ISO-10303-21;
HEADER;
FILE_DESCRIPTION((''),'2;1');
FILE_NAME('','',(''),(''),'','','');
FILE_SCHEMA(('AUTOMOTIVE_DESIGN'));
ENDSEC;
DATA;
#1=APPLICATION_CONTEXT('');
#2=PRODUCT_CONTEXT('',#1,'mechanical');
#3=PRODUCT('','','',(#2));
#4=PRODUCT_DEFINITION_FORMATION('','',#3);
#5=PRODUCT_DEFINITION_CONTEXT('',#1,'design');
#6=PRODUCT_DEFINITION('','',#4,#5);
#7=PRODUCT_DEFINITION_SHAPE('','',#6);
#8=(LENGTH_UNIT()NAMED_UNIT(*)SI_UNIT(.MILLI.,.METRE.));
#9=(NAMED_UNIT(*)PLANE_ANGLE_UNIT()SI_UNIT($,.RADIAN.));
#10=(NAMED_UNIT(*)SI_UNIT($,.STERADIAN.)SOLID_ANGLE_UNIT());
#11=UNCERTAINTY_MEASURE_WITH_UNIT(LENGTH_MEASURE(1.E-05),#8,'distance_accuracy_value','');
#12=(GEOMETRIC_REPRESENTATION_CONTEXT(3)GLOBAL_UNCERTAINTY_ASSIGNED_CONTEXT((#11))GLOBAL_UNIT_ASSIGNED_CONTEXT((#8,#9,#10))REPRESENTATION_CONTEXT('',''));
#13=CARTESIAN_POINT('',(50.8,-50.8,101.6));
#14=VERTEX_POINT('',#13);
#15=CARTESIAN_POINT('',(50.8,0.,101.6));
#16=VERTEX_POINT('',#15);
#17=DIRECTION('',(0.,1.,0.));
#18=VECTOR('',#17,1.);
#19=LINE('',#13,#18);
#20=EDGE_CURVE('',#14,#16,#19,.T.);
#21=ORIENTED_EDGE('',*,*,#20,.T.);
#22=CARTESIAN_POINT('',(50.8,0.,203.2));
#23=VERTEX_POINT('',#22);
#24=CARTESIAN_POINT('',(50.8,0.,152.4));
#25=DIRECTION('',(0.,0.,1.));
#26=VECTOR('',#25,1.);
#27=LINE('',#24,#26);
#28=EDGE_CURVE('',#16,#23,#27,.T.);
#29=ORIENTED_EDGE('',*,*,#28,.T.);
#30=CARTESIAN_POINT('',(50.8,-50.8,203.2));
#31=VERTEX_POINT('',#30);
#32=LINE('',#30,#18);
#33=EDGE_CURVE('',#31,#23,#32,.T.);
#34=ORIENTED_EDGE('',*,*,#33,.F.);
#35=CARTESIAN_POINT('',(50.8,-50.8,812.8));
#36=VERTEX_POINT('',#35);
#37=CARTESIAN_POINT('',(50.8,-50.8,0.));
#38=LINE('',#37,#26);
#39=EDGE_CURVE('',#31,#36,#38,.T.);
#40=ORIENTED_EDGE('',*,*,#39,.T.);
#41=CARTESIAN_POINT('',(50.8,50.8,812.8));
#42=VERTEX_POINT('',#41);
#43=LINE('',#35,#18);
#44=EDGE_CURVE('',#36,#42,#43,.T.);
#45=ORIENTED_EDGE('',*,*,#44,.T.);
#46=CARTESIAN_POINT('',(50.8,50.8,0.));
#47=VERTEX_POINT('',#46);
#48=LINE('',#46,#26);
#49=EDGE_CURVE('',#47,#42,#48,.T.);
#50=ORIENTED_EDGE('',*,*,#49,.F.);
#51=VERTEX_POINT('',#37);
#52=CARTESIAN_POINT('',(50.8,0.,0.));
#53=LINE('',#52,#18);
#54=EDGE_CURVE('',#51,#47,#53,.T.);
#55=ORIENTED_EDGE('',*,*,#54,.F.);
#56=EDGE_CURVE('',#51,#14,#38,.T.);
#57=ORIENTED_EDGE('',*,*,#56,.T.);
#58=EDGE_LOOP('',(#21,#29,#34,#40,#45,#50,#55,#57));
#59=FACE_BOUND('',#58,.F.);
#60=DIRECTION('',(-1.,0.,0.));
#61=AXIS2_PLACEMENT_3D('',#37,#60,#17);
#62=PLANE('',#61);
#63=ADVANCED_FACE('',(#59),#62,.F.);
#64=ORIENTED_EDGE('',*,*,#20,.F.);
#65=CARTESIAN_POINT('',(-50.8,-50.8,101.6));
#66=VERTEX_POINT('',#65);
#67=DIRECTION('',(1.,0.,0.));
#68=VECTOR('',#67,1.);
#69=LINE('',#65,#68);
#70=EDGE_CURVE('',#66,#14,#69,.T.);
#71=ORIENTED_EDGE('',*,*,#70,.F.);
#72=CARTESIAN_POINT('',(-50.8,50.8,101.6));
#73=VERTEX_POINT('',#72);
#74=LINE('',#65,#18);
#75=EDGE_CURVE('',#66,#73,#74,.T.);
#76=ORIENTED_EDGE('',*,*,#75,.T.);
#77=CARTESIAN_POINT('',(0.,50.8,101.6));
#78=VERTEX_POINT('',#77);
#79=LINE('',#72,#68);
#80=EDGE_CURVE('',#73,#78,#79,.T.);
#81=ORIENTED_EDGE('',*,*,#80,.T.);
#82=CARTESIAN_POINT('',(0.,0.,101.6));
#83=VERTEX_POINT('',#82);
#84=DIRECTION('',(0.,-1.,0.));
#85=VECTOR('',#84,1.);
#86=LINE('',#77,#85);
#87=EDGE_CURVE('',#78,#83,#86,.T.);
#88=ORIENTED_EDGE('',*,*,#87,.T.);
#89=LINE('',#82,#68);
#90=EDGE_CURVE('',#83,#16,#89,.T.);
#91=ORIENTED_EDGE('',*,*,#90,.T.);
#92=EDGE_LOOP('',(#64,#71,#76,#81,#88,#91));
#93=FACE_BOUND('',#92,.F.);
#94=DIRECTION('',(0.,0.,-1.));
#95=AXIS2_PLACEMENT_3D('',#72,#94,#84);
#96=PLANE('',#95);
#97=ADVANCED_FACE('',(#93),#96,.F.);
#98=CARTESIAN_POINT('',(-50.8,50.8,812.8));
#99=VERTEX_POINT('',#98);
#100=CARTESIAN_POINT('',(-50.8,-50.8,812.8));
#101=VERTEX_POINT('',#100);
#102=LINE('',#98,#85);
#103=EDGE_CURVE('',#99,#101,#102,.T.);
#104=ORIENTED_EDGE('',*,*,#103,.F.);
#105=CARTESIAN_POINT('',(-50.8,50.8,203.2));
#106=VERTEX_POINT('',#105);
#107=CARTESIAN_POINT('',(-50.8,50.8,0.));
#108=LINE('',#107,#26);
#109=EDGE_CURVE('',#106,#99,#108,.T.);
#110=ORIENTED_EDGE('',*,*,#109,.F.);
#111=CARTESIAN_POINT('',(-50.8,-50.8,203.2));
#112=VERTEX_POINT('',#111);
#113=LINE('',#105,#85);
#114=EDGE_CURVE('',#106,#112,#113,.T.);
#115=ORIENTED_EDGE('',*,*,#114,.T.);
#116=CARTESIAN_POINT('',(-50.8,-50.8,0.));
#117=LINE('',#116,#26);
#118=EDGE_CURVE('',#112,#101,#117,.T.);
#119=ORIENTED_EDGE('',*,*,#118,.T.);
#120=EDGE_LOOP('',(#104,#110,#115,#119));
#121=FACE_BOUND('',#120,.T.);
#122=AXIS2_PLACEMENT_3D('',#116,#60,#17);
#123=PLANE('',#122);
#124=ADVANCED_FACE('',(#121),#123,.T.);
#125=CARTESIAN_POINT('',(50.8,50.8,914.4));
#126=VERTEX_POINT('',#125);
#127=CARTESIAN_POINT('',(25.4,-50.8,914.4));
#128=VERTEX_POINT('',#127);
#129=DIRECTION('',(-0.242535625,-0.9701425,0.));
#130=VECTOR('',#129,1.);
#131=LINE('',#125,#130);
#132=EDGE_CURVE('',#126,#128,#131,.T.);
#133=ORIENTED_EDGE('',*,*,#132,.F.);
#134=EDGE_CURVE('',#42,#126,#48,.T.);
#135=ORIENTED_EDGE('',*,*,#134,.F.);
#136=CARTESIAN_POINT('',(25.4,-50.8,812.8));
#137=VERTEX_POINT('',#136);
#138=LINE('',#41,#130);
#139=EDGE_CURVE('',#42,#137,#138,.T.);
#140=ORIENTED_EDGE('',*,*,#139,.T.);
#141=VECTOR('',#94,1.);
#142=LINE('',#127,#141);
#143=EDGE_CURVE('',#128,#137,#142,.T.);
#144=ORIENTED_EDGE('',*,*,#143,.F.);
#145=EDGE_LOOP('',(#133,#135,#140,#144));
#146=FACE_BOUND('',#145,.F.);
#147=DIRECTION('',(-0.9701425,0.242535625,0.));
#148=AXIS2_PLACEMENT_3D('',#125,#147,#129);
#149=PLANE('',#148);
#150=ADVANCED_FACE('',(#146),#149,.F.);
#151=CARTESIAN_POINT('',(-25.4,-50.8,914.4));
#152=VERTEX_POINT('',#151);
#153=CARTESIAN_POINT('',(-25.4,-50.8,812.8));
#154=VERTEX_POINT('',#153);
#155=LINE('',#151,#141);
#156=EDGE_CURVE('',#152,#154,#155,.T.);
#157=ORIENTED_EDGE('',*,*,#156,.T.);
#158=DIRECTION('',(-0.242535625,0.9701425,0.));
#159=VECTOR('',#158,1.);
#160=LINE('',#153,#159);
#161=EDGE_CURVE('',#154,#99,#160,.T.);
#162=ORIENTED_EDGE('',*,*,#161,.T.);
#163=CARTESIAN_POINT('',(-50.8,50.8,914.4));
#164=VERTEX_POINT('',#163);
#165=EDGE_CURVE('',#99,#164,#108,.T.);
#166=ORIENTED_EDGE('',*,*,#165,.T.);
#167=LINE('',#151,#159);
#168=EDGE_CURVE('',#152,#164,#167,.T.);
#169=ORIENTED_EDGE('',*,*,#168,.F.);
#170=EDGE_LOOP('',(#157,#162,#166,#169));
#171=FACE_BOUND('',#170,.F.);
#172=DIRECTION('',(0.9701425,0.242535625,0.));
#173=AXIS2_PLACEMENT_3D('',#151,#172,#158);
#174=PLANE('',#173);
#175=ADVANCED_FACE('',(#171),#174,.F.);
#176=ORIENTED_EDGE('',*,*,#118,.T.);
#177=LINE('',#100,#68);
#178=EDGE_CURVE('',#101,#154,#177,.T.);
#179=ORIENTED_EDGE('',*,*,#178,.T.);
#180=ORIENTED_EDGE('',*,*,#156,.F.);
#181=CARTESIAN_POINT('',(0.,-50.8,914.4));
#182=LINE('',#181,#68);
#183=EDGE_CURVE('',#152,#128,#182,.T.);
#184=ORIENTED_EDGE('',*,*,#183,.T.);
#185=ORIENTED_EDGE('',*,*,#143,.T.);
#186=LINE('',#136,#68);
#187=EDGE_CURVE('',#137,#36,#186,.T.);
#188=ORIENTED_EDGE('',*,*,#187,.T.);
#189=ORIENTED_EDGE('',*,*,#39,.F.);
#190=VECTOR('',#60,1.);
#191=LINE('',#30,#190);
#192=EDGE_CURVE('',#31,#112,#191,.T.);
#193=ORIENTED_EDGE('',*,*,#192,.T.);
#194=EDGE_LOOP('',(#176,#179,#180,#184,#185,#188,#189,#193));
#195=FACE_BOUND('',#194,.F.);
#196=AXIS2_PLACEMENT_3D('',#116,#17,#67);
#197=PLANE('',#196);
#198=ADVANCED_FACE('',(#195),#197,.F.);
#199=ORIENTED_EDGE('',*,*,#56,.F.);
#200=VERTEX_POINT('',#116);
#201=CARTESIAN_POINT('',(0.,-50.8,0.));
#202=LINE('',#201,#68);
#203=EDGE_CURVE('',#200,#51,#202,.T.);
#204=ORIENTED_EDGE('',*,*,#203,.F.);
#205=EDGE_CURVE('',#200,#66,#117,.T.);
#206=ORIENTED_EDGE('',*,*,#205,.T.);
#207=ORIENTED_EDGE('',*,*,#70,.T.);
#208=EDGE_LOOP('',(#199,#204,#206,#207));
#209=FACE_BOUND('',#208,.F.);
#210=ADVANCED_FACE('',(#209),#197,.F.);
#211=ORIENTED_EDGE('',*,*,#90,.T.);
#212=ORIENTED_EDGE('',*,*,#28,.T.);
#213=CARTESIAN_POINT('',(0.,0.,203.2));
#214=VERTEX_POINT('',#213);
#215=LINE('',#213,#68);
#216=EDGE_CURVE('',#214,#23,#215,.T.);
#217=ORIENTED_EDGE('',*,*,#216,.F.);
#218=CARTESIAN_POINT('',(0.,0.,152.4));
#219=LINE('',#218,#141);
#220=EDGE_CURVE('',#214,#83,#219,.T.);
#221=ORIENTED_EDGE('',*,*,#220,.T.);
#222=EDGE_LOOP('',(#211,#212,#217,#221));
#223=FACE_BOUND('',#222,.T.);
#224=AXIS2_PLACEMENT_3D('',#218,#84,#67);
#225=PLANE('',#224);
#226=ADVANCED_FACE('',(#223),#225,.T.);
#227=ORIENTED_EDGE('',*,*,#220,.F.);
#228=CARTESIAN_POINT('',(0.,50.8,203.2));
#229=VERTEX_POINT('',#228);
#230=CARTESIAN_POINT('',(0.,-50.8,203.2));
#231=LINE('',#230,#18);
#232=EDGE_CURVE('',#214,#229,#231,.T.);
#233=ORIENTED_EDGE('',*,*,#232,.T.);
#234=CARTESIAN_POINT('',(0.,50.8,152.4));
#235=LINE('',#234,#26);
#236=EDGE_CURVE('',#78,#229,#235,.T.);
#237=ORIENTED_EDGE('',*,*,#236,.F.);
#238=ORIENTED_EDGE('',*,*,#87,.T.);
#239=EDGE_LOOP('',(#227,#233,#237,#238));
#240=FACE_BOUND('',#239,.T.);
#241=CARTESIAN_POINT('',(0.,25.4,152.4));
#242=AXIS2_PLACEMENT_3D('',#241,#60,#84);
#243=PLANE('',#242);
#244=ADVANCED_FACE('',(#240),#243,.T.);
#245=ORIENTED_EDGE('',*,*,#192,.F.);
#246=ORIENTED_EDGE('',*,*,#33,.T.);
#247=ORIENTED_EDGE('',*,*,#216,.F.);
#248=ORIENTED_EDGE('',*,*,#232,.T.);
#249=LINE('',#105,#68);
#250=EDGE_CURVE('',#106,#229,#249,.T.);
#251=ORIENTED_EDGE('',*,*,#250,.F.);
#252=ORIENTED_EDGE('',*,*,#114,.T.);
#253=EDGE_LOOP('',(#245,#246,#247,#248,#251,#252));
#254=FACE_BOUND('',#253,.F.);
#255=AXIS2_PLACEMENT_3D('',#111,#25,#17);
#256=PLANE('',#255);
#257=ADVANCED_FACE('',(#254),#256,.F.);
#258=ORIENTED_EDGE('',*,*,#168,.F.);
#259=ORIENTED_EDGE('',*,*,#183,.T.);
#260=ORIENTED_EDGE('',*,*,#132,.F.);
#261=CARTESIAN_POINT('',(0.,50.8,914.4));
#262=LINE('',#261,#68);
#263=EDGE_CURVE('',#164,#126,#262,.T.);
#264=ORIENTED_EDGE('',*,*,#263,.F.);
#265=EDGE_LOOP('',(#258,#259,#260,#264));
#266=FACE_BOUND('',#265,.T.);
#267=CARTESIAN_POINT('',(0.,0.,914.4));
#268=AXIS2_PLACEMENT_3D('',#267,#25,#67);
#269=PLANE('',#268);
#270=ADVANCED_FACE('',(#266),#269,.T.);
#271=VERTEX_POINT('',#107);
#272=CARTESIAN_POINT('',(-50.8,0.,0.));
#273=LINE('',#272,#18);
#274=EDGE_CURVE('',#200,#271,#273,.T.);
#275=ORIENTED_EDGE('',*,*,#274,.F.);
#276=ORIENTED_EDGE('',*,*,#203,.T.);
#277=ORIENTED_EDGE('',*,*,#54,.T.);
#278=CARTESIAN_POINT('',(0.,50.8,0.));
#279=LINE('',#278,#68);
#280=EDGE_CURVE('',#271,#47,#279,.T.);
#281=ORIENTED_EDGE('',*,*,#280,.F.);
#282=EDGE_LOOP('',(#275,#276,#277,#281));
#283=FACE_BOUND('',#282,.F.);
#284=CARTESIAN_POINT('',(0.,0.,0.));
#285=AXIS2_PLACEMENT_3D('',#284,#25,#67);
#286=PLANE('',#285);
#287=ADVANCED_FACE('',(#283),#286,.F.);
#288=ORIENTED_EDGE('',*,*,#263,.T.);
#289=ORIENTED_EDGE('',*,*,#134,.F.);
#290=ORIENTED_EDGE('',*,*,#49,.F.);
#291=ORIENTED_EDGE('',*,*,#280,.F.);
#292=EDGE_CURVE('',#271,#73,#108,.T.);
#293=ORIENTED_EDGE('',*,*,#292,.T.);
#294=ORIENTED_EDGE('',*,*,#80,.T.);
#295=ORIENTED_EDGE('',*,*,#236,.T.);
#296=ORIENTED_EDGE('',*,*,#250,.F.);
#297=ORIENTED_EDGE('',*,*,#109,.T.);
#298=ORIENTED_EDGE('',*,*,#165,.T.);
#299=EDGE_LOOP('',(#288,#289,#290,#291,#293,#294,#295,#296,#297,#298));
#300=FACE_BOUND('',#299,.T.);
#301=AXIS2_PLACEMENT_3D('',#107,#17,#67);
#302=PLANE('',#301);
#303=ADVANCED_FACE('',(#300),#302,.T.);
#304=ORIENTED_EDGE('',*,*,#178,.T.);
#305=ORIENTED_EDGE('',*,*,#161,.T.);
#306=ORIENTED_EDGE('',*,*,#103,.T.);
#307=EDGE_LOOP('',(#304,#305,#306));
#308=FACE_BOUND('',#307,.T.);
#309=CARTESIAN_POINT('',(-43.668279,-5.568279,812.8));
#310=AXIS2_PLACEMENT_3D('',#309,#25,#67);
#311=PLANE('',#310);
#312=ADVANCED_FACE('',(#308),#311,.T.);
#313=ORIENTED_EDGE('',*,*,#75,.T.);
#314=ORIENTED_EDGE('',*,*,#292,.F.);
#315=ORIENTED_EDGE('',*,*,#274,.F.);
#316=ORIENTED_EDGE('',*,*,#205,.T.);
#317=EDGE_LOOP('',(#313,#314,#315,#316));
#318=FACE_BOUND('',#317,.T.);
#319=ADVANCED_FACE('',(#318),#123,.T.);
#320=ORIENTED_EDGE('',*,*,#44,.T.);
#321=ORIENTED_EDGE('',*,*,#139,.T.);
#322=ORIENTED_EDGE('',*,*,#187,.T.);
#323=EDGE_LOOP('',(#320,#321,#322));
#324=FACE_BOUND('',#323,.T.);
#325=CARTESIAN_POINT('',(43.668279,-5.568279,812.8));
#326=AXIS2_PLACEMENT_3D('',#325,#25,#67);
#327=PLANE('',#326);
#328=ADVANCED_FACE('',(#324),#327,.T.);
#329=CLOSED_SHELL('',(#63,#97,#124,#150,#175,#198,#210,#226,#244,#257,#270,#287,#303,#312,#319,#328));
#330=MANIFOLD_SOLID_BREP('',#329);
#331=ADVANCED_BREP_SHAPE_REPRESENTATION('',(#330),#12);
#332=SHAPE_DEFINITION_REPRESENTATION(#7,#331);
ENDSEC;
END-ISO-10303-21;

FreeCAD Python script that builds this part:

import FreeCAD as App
import Part
import Sketcher

V = App.Vector
Q = App.Units.Quantity


def add_polygon(sketch, points):
    """Adds a closed chain of lines whose ends are joined by coincident constraints."""
    first, n = sketch.GeometryCount, len(points)
    for a, b in zip(points, points[1:] + points[:1]):
        sketch.addGeometry(Part.LineSegment(App.Vector(*a, 0), App.Vector(*b, 0)), False)
    for i in range(n):
        sketch.addConstraint(Sketcher.Constraint("Coincident", first + i, 2, first + (i + 1) % n, 1))

doc = App.newDocument("Part")
body = doc.addObject("PartDesign::Body", "Body")

# Sketch on XY plane
sketch1 = body.newObject("Sketcher::SketchObject", "Sketch")
sketch1.AttachmentSupport = (doc.getObject("XY_Plane"), [""])
sketch1.MapMode = "FlatFace"
add_polygon(sketch1, [(-51, 51), (-51, -51), (51, -51), (51, 51)])  # lines 0-3
sketch1.addConstraint(Sketcher.Constraint("Vertical", 0))
sketch1.addConstraint(Sketcher.Constraint("Horizontal", 1))
sketch1.addConstraint(Sketcher.Constraint("Vertical", 2))
sketch1.addConstraint(Sketcher.Constraint("Horizontal", 3))
sketch1.addConstraint(Sketcher.Constraint("Symmetric", 0, 2, 2, 2, -1, 1))
sketch1.addConstraint(Sketcher.Constraint("Equal", 3, 0))
sketch1.addConstraint(Sketcher.Constraint("DistanceX", 1, 1, 1, 2, Q("4 in")))
pad1 = body.newObject("PartDesign::Pad", "Pad")
pad1.Profile = sketch1
pad1.Length = Q("36 in")

# Sketch on XY plane
sketch2 = body.newObject("Sketcher::SketchObject", "Sketch001")
sketch2.AttachmentSupport = (doc.getObject("XY_Plane"), [""])
sketch2.MapMode = "FlatFace"
sketch2.AttachmentOffset = App.Placement(V(0, 0, 36 * 25.4), App.Rotation())
add_polygon(sketch2, [(-25, -51), (-51, 51), (-51, -51)])  # lines 0-2
add_polygon(sketch2, [(51, -51), (51, 51), (25, -51)])  # lines 3-5
sketch2.addConstraint(Sketcher.Constraint("Vertical", 1))
sketch2.addConstraint(Sketcher.Constraint("Horizontal", 2))
sketch2.addConstraint(Sketcher.Constraint("Vertical", 3))
sketch2.addConstraint(Sketcher.Constraint("Horizontal", 5))
sketch2.addConstraint(Sketcher.Constraint("Symmetric", 1, 2, 3, 2, -1, 1))
sketch2.addConstraint(Sketcher.Constraint("Symmetric", 2, 2, 4, 2, -2))
sketch2.addConstraint(Sketcher.Constraint("Horizontal", 0, 2, 3, 2))
sketch2.addConstraint(Sketcher.Constraint("DistanceX", 2, 1, 2, 2, Q("1 in")))
sketch2.addConstraint(Sketcher.Constraint("DistanceY", 1, 2, 1, 1, Q("4 in")))
sketch2.addConstraint(Sketcher.Constraint("DistanceX", 0, 2, -1, 1, Q("2 in")))
pocket1 = body.newObject("PartDesign::Pocket", "Pocket")
pocket1.Profile = sketch2
pocket1.Length = Q("4 in")

# Sketch on XZ plane
sketch3 = body.newObject("Sketcher::SketchObject", "Sketch002")
sketch3.AttachmentSupport = (doc.getObject("XZ_Plane"), [""])
sketch3.MapMode = "FlatFace"
sketch3.AttachmentOffset = App.Placement(V(0, 0, 2 * 25.4), App.Rotation())
add_polygon(sketch3, [(-51, 203), (-51, 102), (51, 102), (51, 203)])  # lines 0-3
sketch3.addConstraint(Sketcher.Constraint("Vertical", 0))
sketch3.addConstraint(Sketcher.Constraint("Horizontal", 1))
sketch3.addConstraint(Sketcher.Constraint("Vertical", 2))
sketch3.addConstraint(Sketcher.Constraint("Horizontal", 3))
sketch3.addConstraint(Sketcher.Constraint("Equal", 3, 0))
sketch3.addConstraint(Sketcher.Constraint("DistanceX", 1, 1, 1, 2, Q("4 in")))
sketch3.addConstraint(Sketcher.Constraint("DistanceX", 0, 2, -1, 1, Q("2 in")))
sketch3.addConstraint(Sketcher.Constraint("DistanceY", -1, 1, 0, 2, Q("4 in")))
pocket2 = body.newObject("PartDesign::Pocket", "Pocket001")
pocket2.Profile = sketch3
pocket2.Length = Q("2 in")

# Sketch on YZ plane
sketch4 = body.newObject("Sketcher::SketchObject", "Sketch003")
sketch4.AttachmentSupport = (doc.getObject("YZ_Plane"), [""])
sketch4.MapMode = "FlatFace"
sketch4.AttachmentOffset = App.Placement(V(0, 0, -2 * 25.4), App.Rotation())
add_polygon(sketch4, [(51, 203), (51, 102), (-51, 102), (-51, 203)])  # lines 0-3
sketch4.addConstraint(Sketcher.Constraint("Vertical", 0))
sketch4.addConstraint(Sketcher.Constraint("Horizontal", 1))
sketch4.addConstraint(Sketcher.Constraint("Vertical", 2))
sketch4.addConstraint(Sketcher.Constraint("Horizontal", 3))
sketch4.addConstraint(Sketcher.Constraint("Equal", 3, 0))
sketch4.addConstraint(Sketcher.Constraint("DistanceX", 1, 2, 1, 1, Q("4 in")))
sketch4.addConstraint(Sketcher.Constraint("DistanceX", -1, 1, 0, 2, Q("2 in")))
sketch4.addConstraint(Sketcher.Constraint("DistanceY", -1, 1, 0, 2, Q("4 in")))
pocket3 = body.newObject("PartDesign::Pocket", "Pocket002")
pocket3.Profile = sketch4
pocket3.Length = Q("2 in")
pocket3.Reversed = True

doc.recompute()
